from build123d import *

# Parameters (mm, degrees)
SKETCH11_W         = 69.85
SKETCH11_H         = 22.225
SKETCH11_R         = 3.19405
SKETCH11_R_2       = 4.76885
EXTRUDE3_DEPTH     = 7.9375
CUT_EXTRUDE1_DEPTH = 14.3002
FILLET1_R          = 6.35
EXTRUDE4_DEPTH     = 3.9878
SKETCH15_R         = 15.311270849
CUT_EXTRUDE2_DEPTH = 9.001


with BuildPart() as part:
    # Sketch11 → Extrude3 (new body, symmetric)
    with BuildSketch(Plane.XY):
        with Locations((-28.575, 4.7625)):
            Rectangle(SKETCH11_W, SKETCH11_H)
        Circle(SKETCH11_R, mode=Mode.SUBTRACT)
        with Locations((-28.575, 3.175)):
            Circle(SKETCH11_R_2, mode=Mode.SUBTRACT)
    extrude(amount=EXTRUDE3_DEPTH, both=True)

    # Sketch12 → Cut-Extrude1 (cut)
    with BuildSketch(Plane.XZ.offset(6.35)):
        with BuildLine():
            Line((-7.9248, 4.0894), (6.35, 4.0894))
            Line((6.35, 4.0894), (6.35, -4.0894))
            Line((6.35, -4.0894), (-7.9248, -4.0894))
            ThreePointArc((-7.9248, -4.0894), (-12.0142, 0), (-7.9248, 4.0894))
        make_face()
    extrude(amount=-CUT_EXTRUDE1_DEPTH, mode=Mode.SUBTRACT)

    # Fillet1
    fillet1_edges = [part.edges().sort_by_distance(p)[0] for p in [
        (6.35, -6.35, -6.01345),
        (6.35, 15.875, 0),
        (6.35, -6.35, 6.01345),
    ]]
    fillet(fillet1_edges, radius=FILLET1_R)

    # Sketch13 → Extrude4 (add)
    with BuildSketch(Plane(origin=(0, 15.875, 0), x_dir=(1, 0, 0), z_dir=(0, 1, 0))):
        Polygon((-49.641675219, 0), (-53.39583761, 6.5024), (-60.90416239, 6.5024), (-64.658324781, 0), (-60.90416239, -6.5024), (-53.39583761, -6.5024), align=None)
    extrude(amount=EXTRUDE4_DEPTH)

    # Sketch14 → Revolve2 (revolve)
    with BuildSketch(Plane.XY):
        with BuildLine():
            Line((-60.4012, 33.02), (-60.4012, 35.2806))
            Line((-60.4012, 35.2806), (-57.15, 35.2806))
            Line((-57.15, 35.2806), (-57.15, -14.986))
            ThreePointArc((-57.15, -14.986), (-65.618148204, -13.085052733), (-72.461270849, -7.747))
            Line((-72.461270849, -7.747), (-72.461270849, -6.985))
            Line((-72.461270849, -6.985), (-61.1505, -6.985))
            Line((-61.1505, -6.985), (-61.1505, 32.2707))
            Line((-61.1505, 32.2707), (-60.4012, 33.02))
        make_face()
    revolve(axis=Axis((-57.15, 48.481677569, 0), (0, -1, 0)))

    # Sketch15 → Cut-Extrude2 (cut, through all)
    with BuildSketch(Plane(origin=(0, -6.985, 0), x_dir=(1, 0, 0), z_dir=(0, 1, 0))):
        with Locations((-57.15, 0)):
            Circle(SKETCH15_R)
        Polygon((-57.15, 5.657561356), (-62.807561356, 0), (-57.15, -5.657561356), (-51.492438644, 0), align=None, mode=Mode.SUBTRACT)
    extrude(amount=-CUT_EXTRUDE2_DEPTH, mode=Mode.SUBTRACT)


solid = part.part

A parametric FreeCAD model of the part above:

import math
import FreeCAD as App
import Part
import Sketcher
from FreeCAD import Vector
Q = App.Units.Quantity


def edges_at(feature, points):
    """Names of the edges that pass closest to the given points."""
    edges = feature.Shape.Edges
    near = lambda p: min(range(len(edges)), key=lambda i: edges[i].distToShape(Part.Vertex(*p))[0])
    return sorted({f"Edge{near(p) + 1}" for p in points})


def add_polygon(sketch, points):
    """Adds a closed chain of lines whose ends are joined by coincident constraints."""
    first, n = sketch.GeometryCount, len(points)
    for a, b in zip(points, points[1:] + points[:1]):
        sketch.addGeometry(Part.LineSegment(App.Vector(*a, 0), App.Vector(*b, 0)), False)
    for i in range(n):
        sketch.addConstraint(Sketcher.Constraint("Coincident", first + i, 2, first + (i + 1) % n, 1))

doc = App.newDocument("Part")
body = doc.addObject("PartDesign::Body", "Body")

# Sketch on XY plane
sketch1 = body.newObject("Sketcher::SketchObject", "Sketch")
sketch1.AttachmentSupport = (doc.getObject("XY_Plane"), [""])
sketch1.MapMode = "FlatFace"
add_polygon(sketch1, [(-63.5, 15.875), (-63.5, -6.35), (6.35, -6.35), (6.35, 15.875)])  # lines 0-3
sketch1.addGeometry(Part.Circle(Vector(0, 0, 0), Vector(0, 0, 1), 3.19405), False)  # 4
sketch1.addGeometry(Part.Circle(Vector(-28.575, 3.175, 0), Vector(0, 0, 1), 4.76885), False)  # 5
sketch1.addConstraint([
    Sketcher.Constraint("Vertical", 0),
    Sketcher.Constraint("Horizontal", 1),
    Sketcher.Constraint("Vertical", 2),
    Sketcher.Constraint("Horizontal", 3),
    Sketcher.Constraint("Coincident", 4, 3, -1, 1),
    Sketcher.Constraint("Diameter", 4, Q("0.2515 in")),
    Sketcher.Constraint("Diameter", 5, Q("0.3755 in")),
    Sketcher.Constraint("DistanceX", 1, 1, 1, 2, Q("2.75 in")),
    Sketcher.Constraint("DistanceX", 0, 2, -1, 1, Q("2.5 in")),
    Sketcher.Constraint("DistanceY", 5, 3, 2, 2, Q("0.5 in")),
    Sketcher.Constraint("DistanceY", 0, 2, 0, 1, Q("0.875 in")),
    Sketcher.Constraint("DistanceY", 0, 2, -1, 1, Q("0.25 in")),
    Sketcher.Constraint("DistanceX", 5, 3, -1, 1, Q("1.125 in")),
])
pad1 = body.newObject("PartDesign::Pad", "Pad")
pad1.Profile = sketch1
pad1.Length = Q("0.625 in")
pad1.Midplane = True

# Sketch on XZ plane
sketch2 = body.newObject("Sketcher::SketchObject", "Sketch001")
sketch2.AttachmentSupport = (doc.getObject("XZ_Plane"), [""])
sketch2.MapMode = "FlatFace"
sketch2.AttachmentOffset = App.Placement(Vector(0, 0, 0.25 * 25.4), App.Rotation())
sketch2.addGeometry([
    Part.LineSegment(Vector(6.35, 4.0894, 0), Vector(-7.9248, 4.0894, 0)),
    Part.ArcOfCircle(Part.Circle(Vector(-7.9248, 0, 0), Vector(0, 0, 1), 4.0894), math.radians(90), math.radians(270)),
    Part.LineSegment(Vector(-7.9248, -4.0894, 0), Vector(6.35, -4.0894, 0)),
    Part.LineSegment(Vector(6.35, -4.0894, 0), Vector(6.35, 4.0894, 0)),
], False)
sketch2.addConstraint([
    Sketcher.Constraint("Tangent", 0, 2, 1, 1),
    Sketcher.Constraint("Tangent", 1, 2, 2, 1),
    Sketcher.Constraint("Coincident", 2, 2, 3, 1),
    Sketcher.Constraint("Coincident", 3, 2, 0, 1),
    Sketcher.Constraint("Horizontal", 0),
    Sketcher.Constraint("Horizontal", 2),
    Sketcher.Constraint("Vertical", 3),
    Sketcher.Constraint("PointOnObject", 1, 3, -1),
    Sketcher.Constraint("Radius", 1, Q("0.161 in")),
    Sketcher.Constraint("DistanceX", 0, 2, 0, 1, Q("0.562 in")),
    Sketcher.Constraint("DistanceX", -1, 1, 2, 2, Q("0.25 in")),
])
pocket1 = body.newObject("PartDesign::Pocket", "Pocket")
pocket1.Profile = sketch2
pocket1.Length = Q("0.563 in")
doc.recompute()

fillet = body.newObject("PartDesign::Fillet", "Fillet")
fillet.Base = (pocket1, edges_at(pocket1, [(6.35, -6.35, -6.013), (6.35, 15.875, 0), (6.35, -6.35, 6.013)]))
fillet.Radius = Q("0.25 in")

# Sketch on XZ plane
sketch3 = body.newObject("Sketcher::SketchObject", "Sketch002")
sketch3.AttachmentSupport = (doc.getObject("XZ_Plane"), [""])
sketch3.MapMode = "FlatFace"
sketch3.AttachmentOffset = App.Placement(Vector(0, 0, -0.625 * 25.4), App.Rotation())
add_polygon(sketch3, [(-49.641675, 0), (-53.395838, -6.5024), (-60.904162, -6.5024), (-64.658325, 0), (-60.904162, 6.5024), (-53.395838, 6.5024)])  # lines 0-5
sketch3.addConstraint([
    Sketcher.Constraint("Horizontal", 1),
    Sketcher.Constraint("Horizontal", 4),
    Sketcher.Constraint("Symmetric", 1, 2, 3, 2, -1),
    Sketcher.Constraint("PointOnObject", 2, 2, -1),
    Sketcher.Constraint("PointOnObject", 5, 2, -1),
    Sketcher.Constraint("Parallel", 0, 3),
    Sketcher.Constraint("Parallel", 2, 5),
    Sketcher.Constraint("Angle", 0, Q("-120 deg")),
    Sketcher.Constraint("DistanceY", 0, 2, -1, 1, Q("0.256 in")),
    Sketcher.Constraint("DistanceX", 1, 2, 1, 1, 7.508325),
    Sketcher.Constraint("DistanceX", 0, 2, -1, 1, 53.395838),
])
pad2 = body.newObject("PartDesign::Pad", "Pad001")
pad2.Profile = sketch3
pad2.Length = Q("0.157 in")
pad2.Reversed = True

# Sketch on XY plane
sketch4 = body.newObject("Sketcher::SketchObject", "Sketch003")
sketch4.AttachmentSupport = (doc.getObject("XY_Plane"), [""])
sketch4.MapMode = "FlatFace"
sketch4.addGeometry([
    Part.LineSegment(Vector(-60.4012, 35.2806, 0), Vector(-60.4012, 33.02, 0)),  # 0
    Part.LineSegment(Vector(-60.4012, 33.02, 0), Vector(-61.1505, 32.2707, 0)),  # 1
    Part.LineSegment(Vector(-61.1505, 32.2707, 0), Vector(-61.1505, -6.985, 0)),  # 2
    Part.LineSegment(Vector(-61.1505, -6.985, 0), Vector(-72.461271, -6.985, 0)),  # 3
    Part.LineSegment(Vector(-72.461271, -6.985, 0), Vector(-72.461271, -7.747, 0)),  # 4
    Part.ArcOfCircle(Part.Circle(Vector(-57.15, 4.826, 0), Vector(0, 0, 1), 19.812), math.radians(-140.608536), math.radians(-90)),  # 5
    Part.LineSegment(Vector(-57.15, -14.986, 0), Vector(-57.15, 35.2806, 0)),  # 6
    Part.LineSegment(Vector(-57.15, 35.2806, 0), Vector(-60.4012, 35.2806, 0)),  # 7
], False)
sketch4.addGeometry(Part.LineSegment(Vector(-57.15, 35.2806, 0), Vector(-57.15, -14.986, 0)), True)  # axis
sketch4.addConstraint([
    Sketcher.Constraint("Coincident", 0, 2, 1, 1),
    Sketcher.Constraint("Coincident", 1, 2, 2, 1),
    Sketcher.Constraint("Coincident", 2, 2, 3, 1),
    Sketcher.Constraint("Coincident", 3, 2, 4, 1),
    Sketcher.Constraint("Coincident", 4, 2, 5, 1),
    Sketcher.Constraint("Coincident", 5, 2, 6, 1),
    Sketcher.Constraint("Coincident", 6, 2, 7, 1),
    Sketcher.Constraint("Coincident", 7, 2, 0, 1),
    Sketcher.Constraint("Vertical", 0),
    Sketcher.Constraint("Vertical", 2),
    Sketcher.Constraint("Horizontal", 3),
    Sketcher.Constraint("Vertical", 4),
    Sketcher.Constraint("Vertical", 6),
    Sketcher.Constraint("Horizontal", 7),
    Sketcher.Constraint("Vertical", 8),
    Sketcher.Constraint("Coincident", 8, 1, 6, 2),
    Sketcher.Constraint("Equal", 6, 8),
    Sketcher.Constraint("Radius", 5, Q("0.78 in")),
    Sketcher.Constraint("Angle", 1, Q("-135 deg")),
    Sketcher.Constraint("DistanceY", 4, 2, 4, 1, Q("0.03 in")),
    Sketcher.Constraint("DistanceY", -1, 1, 0, 2, Q("1.3 in")),
    Sketcher.Constraint("DistanceX", 7, 2, 7, 1, Q("0.128 in")),
    Sketcher.Constraint("DistanceY", 0, 2, 0, 1, Q("0.089 in")),
    Sketcher.Constraint("DistanceY", 6, 1, 6, 2, Q("1.979 in")),
    Sketcher.Constraint("DistanceX", 5, 3, -1, 1, Q("2.25 in")),
    Sketcher.Constraint("DistanceX", 5, 2, -1, 1, Q("2.25 in")),
    Sketcher.Constraint("DistanceY", 2, 2, 2, 1, Q("1.5455 in")),
    Sketcher.Constraint("DistanceY", 2, 2, -1, 1, Q("0.275 in")),
])
revolution = body.newObject("PartDesign::Revolution", "Revolution")
revolution.Profile = sketch4
revolution.ReferenceAxis = (sketch4, ["Axis0"])
revolution.Angle = 360

# Sketch on XZ plane
sketch5 = body.newObject("Sketcher::SketchObject", "Sketch004")
sketch5.AttachmentSupport = (doc.getObject("XZ_Plane"), [""])
sketch5.MapMode = "FlatFace"
sketch5.AttachmentOffset = App.Placement(Vector(0, 0, 0.275 * 25.4), App.Rotation())
sketch5.addGeometry(Part.Circle(Vector(-57.15, 0, 0), Vector(0, 0, 1), 15.311271), False)  # 0
add_polygon(sketch5, [(-62.807561, 0), (-57.15, -5.657561), (-51.492439, 0), (-57.15, 5.657561)])  # lines 1-4
sketch5.addConstraint([
    Sketcher.Constraint("Symmetric", 1, 2, 3, 2, -1),
    Sketcher.Constraint("PointOnObject", 0, 3, -1),
    Sketcher.Constraint("PointOnObject", 2, 2, -1),
    Sketcher.Constraint("PointOnObject", 4, 2, -1),
    Sketcher.Constraint("Perpendicular", 1, 2),
    Sketcher.Constraint("Perpendicular", 2, 3),
    Sketcher.Constraint("Vertical", 0, 3, 1, 2),
    Sketcher.Constraint("DistanceX", 0, 3, -1, 1, Q("2.25 in")),
    Sketcher.Constraint("Distance", 1, Q("0.315 in")),
    Sketcher.Constraint("Diameter", 0, 30.622542),
])
pocket2 = body.newObject("PartDesign::Pocket", "Pocket001")
pocket2.Profile = sketch5
pocket2.Type = "ThroughAll"
pocket2.Reversed = True

doc.recompute()
